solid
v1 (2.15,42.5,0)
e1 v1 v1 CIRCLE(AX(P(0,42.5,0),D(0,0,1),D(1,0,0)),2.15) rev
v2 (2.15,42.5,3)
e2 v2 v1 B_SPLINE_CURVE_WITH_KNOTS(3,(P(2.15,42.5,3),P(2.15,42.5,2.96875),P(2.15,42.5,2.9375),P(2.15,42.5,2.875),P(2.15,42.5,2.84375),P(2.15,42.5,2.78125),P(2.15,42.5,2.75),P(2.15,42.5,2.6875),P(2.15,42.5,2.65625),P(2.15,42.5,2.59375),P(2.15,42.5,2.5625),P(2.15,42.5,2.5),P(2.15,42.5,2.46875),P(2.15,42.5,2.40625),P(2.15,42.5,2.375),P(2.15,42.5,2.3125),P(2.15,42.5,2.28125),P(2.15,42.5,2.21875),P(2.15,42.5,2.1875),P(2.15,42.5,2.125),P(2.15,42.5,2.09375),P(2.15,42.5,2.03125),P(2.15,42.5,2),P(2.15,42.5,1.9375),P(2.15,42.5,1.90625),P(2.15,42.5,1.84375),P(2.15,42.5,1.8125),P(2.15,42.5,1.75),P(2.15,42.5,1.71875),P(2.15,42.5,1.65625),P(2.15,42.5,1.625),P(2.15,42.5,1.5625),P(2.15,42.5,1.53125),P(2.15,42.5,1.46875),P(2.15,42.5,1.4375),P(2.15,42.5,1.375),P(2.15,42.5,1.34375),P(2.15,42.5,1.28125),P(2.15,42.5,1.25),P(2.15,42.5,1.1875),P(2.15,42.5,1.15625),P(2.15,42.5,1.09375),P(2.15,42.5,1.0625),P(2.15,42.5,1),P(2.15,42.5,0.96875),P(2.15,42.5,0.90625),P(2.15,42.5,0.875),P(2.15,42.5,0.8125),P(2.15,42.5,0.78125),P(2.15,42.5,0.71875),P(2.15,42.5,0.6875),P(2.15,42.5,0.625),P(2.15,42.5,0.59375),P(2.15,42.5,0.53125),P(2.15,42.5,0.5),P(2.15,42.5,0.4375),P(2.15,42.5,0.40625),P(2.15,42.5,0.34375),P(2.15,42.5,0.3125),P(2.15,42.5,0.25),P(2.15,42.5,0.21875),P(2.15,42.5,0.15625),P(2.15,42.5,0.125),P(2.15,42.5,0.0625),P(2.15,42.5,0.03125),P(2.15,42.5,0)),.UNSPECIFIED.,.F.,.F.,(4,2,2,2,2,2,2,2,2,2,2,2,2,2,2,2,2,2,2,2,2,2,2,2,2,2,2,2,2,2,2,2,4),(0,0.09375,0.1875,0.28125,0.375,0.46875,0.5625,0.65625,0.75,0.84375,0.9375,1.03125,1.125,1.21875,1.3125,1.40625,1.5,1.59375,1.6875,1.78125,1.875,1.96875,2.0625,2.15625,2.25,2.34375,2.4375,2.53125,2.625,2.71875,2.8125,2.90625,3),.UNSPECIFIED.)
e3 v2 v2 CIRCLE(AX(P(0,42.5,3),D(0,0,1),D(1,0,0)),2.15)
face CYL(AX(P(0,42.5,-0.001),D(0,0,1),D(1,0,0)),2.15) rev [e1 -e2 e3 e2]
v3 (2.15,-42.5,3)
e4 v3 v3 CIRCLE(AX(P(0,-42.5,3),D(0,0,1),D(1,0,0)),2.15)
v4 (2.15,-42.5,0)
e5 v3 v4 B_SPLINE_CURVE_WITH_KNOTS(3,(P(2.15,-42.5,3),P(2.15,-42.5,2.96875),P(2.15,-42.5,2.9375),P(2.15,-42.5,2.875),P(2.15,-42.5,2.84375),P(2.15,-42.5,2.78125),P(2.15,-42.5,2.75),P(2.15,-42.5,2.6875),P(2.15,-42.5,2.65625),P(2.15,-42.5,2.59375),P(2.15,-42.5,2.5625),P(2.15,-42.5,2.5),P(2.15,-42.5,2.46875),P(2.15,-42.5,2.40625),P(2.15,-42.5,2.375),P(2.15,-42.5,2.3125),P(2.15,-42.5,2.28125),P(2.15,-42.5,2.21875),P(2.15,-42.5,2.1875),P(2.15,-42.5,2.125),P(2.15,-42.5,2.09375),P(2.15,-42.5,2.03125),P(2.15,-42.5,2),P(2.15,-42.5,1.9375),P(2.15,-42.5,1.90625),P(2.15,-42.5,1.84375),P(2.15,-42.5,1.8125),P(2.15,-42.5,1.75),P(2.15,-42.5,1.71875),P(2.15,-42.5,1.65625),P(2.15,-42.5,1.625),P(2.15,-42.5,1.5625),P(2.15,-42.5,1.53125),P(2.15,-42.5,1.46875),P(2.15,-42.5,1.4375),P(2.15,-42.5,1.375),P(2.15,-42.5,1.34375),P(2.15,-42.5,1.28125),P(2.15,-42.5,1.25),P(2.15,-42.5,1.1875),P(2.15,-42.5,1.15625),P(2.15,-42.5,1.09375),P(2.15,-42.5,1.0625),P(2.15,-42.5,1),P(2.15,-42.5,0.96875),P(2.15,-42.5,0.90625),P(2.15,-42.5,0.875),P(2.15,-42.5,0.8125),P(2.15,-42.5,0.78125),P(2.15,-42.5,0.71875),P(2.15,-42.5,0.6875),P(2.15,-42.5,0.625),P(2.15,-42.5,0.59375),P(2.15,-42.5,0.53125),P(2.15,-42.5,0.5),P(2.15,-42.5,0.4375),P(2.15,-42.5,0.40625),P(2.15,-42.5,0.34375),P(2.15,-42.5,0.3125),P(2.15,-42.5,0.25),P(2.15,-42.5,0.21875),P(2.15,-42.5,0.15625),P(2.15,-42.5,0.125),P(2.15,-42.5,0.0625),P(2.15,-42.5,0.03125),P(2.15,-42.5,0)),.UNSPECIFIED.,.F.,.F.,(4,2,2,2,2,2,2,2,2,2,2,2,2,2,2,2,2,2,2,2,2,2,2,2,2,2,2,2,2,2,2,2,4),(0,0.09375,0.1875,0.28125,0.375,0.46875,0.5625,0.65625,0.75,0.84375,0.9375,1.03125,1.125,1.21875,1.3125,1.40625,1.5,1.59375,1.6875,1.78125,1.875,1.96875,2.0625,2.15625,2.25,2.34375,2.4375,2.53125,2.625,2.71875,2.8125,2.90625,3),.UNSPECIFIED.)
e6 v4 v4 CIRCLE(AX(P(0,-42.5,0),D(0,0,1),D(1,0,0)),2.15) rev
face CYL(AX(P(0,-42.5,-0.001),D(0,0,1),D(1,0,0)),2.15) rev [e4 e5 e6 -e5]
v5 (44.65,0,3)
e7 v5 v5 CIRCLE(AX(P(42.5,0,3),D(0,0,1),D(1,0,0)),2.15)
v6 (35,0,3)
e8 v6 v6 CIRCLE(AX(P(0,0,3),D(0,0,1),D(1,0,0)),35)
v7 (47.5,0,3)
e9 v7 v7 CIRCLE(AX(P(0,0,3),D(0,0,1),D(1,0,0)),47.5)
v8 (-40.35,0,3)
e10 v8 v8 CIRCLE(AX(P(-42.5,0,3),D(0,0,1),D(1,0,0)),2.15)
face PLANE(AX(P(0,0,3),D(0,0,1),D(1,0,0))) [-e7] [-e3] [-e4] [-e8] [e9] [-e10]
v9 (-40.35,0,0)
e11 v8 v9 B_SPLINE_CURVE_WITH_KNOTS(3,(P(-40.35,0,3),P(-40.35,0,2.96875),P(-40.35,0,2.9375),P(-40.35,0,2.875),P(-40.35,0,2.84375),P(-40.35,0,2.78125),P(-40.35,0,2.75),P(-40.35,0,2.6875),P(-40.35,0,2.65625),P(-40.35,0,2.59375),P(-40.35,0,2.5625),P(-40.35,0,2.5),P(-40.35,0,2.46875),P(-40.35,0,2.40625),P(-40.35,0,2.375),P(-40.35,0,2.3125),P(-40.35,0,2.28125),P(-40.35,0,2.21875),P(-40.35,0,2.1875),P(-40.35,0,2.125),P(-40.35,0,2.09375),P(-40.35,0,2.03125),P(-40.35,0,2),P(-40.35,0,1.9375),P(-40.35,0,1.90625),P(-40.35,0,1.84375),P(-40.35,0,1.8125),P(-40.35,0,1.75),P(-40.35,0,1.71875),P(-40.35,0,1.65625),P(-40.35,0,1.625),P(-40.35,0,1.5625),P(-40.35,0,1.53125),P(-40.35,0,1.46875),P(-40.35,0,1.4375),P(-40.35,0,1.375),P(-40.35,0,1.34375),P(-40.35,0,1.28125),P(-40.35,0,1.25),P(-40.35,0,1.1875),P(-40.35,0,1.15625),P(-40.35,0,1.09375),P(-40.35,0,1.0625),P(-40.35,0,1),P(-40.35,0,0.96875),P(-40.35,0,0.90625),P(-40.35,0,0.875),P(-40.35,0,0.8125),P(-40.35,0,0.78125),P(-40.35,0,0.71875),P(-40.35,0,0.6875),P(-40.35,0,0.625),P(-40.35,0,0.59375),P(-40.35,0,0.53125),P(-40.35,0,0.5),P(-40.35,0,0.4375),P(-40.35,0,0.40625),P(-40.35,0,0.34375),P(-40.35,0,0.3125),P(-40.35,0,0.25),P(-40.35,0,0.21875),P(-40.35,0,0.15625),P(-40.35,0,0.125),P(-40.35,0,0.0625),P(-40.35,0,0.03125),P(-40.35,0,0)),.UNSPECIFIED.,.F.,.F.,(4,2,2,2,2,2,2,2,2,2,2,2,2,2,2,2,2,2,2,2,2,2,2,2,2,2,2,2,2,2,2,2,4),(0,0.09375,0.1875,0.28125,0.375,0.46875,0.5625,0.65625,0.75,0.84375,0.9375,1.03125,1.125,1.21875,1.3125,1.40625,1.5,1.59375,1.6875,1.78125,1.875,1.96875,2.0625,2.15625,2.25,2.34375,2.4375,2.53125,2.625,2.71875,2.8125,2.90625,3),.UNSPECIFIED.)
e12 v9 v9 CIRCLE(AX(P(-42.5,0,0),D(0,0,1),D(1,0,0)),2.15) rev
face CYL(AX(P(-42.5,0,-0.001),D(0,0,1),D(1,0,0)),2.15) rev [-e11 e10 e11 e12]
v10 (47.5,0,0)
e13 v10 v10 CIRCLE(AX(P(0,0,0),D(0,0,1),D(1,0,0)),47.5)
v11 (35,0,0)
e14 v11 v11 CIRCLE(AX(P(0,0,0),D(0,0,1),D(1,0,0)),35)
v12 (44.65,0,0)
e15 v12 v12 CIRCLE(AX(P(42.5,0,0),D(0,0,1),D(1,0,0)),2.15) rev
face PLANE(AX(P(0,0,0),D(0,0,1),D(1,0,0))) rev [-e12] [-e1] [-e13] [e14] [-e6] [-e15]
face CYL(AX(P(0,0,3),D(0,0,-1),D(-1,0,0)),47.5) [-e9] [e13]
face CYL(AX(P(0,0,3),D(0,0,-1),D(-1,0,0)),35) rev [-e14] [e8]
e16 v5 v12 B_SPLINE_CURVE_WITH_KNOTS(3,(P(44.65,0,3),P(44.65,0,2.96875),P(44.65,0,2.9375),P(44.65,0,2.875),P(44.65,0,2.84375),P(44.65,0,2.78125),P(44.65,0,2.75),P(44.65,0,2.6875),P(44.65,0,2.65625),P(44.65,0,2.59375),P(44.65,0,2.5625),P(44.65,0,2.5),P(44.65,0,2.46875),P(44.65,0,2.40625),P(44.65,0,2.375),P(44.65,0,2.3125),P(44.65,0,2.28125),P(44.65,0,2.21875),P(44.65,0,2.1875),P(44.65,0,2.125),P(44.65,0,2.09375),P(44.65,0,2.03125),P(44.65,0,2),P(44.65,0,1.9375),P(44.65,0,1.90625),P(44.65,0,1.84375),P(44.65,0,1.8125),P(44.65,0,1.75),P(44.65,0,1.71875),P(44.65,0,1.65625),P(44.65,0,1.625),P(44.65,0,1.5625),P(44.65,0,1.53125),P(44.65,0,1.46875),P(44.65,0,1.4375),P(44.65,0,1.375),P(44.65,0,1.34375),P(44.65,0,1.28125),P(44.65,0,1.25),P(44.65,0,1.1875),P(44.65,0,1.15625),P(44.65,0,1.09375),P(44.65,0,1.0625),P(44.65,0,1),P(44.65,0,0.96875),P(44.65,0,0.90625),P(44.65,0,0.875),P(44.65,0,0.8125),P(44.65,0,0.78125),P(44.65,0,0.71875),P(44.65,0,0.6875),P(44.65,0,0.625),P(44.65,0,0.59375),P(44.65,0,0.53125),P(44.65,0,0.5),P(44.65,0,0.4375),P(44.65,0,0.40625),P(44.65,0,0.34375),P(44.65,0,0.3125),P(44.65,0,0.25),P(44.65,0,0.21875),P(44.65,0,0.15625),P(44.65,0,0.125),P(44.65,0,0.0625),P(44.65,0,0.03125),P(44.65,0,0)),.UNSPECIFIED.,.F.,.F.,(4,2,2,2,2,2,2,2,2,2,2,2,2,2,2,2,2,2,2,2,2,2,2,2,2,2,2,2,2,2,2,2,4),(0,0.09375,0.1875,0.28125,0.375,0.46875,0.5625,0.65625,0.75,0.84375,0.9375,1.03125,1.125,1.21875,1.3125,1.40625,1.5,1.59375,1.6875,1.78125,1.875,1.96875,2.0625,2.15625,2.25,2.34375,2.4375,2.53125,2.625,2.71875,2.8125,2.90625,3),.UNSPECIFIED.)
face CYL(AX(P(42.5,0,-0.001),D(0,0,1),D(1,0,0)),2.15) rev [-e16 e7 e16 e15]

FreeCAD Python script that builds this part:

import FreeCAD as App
import Part
import Sketcher

V = App.Vector

doc = App.newDocument("Part")
body = doc.addObject("PartDesign::Body", "Body")

# Sketch on XY plane
sketch1 = body.newObject("Sketcher::SketchObject", "Sketch")
sketch1.AttachmentSupport = (doc.getObject("XY_Plane"), [""])
sketch1.MapMode = "FlatFace"
sketch1.addGeometry(Part.Circle(V(0, 0, 0), V(0, 0, 1), 47.5), False)
sketch1.addGeometry(Part.Circle(V(0, 0, 0), V(0, 0, 1), 35), False)
sketch1.addConstraint(Sketcher.Constraint("Coincident", 0, 3, -1, 1))
sketch1.addConstraint(Sketcher.Constraint("Coincident", 1, 3, -1, 1))
sketch1.addConstraint(Sketcher.Constraint("Diameter", 0, 95.0))
sketch1.addConstraint(Sketcher.Constraint("Diameter", 1, 70.0))
pad1 = body.newObject("PartDesign::Pad", "Pad")
pad1.Profile = sketch1
pad1.Length = 3

# Sketch on XY plane
sketch2 = body.newObject("Sketcher::SketchObject", "Sketch001")
sketch2.AttachmentSupport = (doc.getObject("XY_Plane"), [""])
sketch2.MapMode = "FlatFace"
sketch2.AttachmentOffset = App.Placement(V(0, 0, 3), App.Rotation())
sketch2.addGeometry(Part.Circle(V(42.5, 0, 0), V(0, 0, 1), 2.15), False)
sketch2.addConstraint(Sketcher.Constraint("PointOnObject", 0, 3, -1))
sketch2.addConstraint(Sketcher.Constraint("Diameter", 0, 4.3))
sketch2.addConstraint(Sketcher.Constraint("DistanceX", -1, 1, 0, 3, 42.5))
pocket1 = body.newObject("PartDesign::Pocket", "Pocket")
pocket1.Profile = sketch2
pocket1.Type = "UpToFirst"

# Sketch on XY plane
sketch3 = body.newObject("Sketcher::SketchObject", "Sketch002")
sketch3.AttachmentSupport = (doc.getObject("XY_Plane"), [""])
sketch3.MapMode = "FlatFace"
sketch3.AttachmentOffset = App.Placement(V(0, 0, 3), App.Rotation())
sketch3.addGeometry(Part.Circle(V(0, -42.5, 0), V(0, 0, 1), 2.15), False)
sketch3.addConstraint(Sketcher.Constraint("PointOnObject", 0, 3, -2))
sketch3.addConstraint(Sketcher.Constraint("Diameter", 0, 4.3))
sketch3.addConstraint(Sketcher.Constraint("DistanceY", 0, 3, -1, 1, 42.5))
pocket2 = body.newObject("PartDesign::Pocket", "Pocket001")
pocket2.Profile = sketch3
pocket2.Type = "UpToFirst"

# Sketch on XY plane
sketch4 = body.newObject("Sketcher::SketchObject", "Sketch003")
sketch4.AttachmentSupport = (doc.getObject("XY_Plane"), [""])
sketch4.MapMode = "FlatFace"
sketch4.AttachmentOffset = App.Placement(V(0, 0, 3), App.Rotation())
sketch4.addGeometry(Part.Circle(V(-42.5, 0, 0), V(0, 0, 1), 2.15), False)
sketch4.addConstraint(Sketcher.Constraint("PointOnObject", 0, 3, -1))
sketch4.addConstraint(Sketcher.Constraint("Diameter", 0, 4.3))
sketch4.addConstraint(Sketcher.Constraint("DistanceX", 0, 3, -1, 1, 42.5))
pocket3 = body.newObject("PartDesign::Pocket", "Pocket002")
pocket3.Profile = sketch4
pocket3.Type = "UpToFirst"

# Sketch on XY plane
sketch5 = body.newObject("Sketcher::SketchObject", "Sketch004")
sketch5.AttachmentSupport = (doc.getObject("XY_Plane"), [""])
sketch5.MapMode = "FlatFace"
sketch5.AttachmentOffset = App.Placement(V(0, 0, 3), App.Rotation())
sketch5.addGeometry(Part.Circle(V(0, 42.5, 0), V(0, 0, 1), 2.15), False)
sketch5.addConstraint(Sketcher.Constraint("PointOnObject", 0, 3, -2))
sketch5.addConstraint(Sketcher.Constraint("Diameter", 0, 4.3))
sketch5.addConstraint(Sketcher.Constraint("DistanceY", -1, 1, 0, 3, 42.5))
pocket4 = body.newObject("PartDesign::Pocket", "Pocket003")
pocket4.Profile = sketch5
pocket4.Type = "UpToFirst"

doc.recompute()
